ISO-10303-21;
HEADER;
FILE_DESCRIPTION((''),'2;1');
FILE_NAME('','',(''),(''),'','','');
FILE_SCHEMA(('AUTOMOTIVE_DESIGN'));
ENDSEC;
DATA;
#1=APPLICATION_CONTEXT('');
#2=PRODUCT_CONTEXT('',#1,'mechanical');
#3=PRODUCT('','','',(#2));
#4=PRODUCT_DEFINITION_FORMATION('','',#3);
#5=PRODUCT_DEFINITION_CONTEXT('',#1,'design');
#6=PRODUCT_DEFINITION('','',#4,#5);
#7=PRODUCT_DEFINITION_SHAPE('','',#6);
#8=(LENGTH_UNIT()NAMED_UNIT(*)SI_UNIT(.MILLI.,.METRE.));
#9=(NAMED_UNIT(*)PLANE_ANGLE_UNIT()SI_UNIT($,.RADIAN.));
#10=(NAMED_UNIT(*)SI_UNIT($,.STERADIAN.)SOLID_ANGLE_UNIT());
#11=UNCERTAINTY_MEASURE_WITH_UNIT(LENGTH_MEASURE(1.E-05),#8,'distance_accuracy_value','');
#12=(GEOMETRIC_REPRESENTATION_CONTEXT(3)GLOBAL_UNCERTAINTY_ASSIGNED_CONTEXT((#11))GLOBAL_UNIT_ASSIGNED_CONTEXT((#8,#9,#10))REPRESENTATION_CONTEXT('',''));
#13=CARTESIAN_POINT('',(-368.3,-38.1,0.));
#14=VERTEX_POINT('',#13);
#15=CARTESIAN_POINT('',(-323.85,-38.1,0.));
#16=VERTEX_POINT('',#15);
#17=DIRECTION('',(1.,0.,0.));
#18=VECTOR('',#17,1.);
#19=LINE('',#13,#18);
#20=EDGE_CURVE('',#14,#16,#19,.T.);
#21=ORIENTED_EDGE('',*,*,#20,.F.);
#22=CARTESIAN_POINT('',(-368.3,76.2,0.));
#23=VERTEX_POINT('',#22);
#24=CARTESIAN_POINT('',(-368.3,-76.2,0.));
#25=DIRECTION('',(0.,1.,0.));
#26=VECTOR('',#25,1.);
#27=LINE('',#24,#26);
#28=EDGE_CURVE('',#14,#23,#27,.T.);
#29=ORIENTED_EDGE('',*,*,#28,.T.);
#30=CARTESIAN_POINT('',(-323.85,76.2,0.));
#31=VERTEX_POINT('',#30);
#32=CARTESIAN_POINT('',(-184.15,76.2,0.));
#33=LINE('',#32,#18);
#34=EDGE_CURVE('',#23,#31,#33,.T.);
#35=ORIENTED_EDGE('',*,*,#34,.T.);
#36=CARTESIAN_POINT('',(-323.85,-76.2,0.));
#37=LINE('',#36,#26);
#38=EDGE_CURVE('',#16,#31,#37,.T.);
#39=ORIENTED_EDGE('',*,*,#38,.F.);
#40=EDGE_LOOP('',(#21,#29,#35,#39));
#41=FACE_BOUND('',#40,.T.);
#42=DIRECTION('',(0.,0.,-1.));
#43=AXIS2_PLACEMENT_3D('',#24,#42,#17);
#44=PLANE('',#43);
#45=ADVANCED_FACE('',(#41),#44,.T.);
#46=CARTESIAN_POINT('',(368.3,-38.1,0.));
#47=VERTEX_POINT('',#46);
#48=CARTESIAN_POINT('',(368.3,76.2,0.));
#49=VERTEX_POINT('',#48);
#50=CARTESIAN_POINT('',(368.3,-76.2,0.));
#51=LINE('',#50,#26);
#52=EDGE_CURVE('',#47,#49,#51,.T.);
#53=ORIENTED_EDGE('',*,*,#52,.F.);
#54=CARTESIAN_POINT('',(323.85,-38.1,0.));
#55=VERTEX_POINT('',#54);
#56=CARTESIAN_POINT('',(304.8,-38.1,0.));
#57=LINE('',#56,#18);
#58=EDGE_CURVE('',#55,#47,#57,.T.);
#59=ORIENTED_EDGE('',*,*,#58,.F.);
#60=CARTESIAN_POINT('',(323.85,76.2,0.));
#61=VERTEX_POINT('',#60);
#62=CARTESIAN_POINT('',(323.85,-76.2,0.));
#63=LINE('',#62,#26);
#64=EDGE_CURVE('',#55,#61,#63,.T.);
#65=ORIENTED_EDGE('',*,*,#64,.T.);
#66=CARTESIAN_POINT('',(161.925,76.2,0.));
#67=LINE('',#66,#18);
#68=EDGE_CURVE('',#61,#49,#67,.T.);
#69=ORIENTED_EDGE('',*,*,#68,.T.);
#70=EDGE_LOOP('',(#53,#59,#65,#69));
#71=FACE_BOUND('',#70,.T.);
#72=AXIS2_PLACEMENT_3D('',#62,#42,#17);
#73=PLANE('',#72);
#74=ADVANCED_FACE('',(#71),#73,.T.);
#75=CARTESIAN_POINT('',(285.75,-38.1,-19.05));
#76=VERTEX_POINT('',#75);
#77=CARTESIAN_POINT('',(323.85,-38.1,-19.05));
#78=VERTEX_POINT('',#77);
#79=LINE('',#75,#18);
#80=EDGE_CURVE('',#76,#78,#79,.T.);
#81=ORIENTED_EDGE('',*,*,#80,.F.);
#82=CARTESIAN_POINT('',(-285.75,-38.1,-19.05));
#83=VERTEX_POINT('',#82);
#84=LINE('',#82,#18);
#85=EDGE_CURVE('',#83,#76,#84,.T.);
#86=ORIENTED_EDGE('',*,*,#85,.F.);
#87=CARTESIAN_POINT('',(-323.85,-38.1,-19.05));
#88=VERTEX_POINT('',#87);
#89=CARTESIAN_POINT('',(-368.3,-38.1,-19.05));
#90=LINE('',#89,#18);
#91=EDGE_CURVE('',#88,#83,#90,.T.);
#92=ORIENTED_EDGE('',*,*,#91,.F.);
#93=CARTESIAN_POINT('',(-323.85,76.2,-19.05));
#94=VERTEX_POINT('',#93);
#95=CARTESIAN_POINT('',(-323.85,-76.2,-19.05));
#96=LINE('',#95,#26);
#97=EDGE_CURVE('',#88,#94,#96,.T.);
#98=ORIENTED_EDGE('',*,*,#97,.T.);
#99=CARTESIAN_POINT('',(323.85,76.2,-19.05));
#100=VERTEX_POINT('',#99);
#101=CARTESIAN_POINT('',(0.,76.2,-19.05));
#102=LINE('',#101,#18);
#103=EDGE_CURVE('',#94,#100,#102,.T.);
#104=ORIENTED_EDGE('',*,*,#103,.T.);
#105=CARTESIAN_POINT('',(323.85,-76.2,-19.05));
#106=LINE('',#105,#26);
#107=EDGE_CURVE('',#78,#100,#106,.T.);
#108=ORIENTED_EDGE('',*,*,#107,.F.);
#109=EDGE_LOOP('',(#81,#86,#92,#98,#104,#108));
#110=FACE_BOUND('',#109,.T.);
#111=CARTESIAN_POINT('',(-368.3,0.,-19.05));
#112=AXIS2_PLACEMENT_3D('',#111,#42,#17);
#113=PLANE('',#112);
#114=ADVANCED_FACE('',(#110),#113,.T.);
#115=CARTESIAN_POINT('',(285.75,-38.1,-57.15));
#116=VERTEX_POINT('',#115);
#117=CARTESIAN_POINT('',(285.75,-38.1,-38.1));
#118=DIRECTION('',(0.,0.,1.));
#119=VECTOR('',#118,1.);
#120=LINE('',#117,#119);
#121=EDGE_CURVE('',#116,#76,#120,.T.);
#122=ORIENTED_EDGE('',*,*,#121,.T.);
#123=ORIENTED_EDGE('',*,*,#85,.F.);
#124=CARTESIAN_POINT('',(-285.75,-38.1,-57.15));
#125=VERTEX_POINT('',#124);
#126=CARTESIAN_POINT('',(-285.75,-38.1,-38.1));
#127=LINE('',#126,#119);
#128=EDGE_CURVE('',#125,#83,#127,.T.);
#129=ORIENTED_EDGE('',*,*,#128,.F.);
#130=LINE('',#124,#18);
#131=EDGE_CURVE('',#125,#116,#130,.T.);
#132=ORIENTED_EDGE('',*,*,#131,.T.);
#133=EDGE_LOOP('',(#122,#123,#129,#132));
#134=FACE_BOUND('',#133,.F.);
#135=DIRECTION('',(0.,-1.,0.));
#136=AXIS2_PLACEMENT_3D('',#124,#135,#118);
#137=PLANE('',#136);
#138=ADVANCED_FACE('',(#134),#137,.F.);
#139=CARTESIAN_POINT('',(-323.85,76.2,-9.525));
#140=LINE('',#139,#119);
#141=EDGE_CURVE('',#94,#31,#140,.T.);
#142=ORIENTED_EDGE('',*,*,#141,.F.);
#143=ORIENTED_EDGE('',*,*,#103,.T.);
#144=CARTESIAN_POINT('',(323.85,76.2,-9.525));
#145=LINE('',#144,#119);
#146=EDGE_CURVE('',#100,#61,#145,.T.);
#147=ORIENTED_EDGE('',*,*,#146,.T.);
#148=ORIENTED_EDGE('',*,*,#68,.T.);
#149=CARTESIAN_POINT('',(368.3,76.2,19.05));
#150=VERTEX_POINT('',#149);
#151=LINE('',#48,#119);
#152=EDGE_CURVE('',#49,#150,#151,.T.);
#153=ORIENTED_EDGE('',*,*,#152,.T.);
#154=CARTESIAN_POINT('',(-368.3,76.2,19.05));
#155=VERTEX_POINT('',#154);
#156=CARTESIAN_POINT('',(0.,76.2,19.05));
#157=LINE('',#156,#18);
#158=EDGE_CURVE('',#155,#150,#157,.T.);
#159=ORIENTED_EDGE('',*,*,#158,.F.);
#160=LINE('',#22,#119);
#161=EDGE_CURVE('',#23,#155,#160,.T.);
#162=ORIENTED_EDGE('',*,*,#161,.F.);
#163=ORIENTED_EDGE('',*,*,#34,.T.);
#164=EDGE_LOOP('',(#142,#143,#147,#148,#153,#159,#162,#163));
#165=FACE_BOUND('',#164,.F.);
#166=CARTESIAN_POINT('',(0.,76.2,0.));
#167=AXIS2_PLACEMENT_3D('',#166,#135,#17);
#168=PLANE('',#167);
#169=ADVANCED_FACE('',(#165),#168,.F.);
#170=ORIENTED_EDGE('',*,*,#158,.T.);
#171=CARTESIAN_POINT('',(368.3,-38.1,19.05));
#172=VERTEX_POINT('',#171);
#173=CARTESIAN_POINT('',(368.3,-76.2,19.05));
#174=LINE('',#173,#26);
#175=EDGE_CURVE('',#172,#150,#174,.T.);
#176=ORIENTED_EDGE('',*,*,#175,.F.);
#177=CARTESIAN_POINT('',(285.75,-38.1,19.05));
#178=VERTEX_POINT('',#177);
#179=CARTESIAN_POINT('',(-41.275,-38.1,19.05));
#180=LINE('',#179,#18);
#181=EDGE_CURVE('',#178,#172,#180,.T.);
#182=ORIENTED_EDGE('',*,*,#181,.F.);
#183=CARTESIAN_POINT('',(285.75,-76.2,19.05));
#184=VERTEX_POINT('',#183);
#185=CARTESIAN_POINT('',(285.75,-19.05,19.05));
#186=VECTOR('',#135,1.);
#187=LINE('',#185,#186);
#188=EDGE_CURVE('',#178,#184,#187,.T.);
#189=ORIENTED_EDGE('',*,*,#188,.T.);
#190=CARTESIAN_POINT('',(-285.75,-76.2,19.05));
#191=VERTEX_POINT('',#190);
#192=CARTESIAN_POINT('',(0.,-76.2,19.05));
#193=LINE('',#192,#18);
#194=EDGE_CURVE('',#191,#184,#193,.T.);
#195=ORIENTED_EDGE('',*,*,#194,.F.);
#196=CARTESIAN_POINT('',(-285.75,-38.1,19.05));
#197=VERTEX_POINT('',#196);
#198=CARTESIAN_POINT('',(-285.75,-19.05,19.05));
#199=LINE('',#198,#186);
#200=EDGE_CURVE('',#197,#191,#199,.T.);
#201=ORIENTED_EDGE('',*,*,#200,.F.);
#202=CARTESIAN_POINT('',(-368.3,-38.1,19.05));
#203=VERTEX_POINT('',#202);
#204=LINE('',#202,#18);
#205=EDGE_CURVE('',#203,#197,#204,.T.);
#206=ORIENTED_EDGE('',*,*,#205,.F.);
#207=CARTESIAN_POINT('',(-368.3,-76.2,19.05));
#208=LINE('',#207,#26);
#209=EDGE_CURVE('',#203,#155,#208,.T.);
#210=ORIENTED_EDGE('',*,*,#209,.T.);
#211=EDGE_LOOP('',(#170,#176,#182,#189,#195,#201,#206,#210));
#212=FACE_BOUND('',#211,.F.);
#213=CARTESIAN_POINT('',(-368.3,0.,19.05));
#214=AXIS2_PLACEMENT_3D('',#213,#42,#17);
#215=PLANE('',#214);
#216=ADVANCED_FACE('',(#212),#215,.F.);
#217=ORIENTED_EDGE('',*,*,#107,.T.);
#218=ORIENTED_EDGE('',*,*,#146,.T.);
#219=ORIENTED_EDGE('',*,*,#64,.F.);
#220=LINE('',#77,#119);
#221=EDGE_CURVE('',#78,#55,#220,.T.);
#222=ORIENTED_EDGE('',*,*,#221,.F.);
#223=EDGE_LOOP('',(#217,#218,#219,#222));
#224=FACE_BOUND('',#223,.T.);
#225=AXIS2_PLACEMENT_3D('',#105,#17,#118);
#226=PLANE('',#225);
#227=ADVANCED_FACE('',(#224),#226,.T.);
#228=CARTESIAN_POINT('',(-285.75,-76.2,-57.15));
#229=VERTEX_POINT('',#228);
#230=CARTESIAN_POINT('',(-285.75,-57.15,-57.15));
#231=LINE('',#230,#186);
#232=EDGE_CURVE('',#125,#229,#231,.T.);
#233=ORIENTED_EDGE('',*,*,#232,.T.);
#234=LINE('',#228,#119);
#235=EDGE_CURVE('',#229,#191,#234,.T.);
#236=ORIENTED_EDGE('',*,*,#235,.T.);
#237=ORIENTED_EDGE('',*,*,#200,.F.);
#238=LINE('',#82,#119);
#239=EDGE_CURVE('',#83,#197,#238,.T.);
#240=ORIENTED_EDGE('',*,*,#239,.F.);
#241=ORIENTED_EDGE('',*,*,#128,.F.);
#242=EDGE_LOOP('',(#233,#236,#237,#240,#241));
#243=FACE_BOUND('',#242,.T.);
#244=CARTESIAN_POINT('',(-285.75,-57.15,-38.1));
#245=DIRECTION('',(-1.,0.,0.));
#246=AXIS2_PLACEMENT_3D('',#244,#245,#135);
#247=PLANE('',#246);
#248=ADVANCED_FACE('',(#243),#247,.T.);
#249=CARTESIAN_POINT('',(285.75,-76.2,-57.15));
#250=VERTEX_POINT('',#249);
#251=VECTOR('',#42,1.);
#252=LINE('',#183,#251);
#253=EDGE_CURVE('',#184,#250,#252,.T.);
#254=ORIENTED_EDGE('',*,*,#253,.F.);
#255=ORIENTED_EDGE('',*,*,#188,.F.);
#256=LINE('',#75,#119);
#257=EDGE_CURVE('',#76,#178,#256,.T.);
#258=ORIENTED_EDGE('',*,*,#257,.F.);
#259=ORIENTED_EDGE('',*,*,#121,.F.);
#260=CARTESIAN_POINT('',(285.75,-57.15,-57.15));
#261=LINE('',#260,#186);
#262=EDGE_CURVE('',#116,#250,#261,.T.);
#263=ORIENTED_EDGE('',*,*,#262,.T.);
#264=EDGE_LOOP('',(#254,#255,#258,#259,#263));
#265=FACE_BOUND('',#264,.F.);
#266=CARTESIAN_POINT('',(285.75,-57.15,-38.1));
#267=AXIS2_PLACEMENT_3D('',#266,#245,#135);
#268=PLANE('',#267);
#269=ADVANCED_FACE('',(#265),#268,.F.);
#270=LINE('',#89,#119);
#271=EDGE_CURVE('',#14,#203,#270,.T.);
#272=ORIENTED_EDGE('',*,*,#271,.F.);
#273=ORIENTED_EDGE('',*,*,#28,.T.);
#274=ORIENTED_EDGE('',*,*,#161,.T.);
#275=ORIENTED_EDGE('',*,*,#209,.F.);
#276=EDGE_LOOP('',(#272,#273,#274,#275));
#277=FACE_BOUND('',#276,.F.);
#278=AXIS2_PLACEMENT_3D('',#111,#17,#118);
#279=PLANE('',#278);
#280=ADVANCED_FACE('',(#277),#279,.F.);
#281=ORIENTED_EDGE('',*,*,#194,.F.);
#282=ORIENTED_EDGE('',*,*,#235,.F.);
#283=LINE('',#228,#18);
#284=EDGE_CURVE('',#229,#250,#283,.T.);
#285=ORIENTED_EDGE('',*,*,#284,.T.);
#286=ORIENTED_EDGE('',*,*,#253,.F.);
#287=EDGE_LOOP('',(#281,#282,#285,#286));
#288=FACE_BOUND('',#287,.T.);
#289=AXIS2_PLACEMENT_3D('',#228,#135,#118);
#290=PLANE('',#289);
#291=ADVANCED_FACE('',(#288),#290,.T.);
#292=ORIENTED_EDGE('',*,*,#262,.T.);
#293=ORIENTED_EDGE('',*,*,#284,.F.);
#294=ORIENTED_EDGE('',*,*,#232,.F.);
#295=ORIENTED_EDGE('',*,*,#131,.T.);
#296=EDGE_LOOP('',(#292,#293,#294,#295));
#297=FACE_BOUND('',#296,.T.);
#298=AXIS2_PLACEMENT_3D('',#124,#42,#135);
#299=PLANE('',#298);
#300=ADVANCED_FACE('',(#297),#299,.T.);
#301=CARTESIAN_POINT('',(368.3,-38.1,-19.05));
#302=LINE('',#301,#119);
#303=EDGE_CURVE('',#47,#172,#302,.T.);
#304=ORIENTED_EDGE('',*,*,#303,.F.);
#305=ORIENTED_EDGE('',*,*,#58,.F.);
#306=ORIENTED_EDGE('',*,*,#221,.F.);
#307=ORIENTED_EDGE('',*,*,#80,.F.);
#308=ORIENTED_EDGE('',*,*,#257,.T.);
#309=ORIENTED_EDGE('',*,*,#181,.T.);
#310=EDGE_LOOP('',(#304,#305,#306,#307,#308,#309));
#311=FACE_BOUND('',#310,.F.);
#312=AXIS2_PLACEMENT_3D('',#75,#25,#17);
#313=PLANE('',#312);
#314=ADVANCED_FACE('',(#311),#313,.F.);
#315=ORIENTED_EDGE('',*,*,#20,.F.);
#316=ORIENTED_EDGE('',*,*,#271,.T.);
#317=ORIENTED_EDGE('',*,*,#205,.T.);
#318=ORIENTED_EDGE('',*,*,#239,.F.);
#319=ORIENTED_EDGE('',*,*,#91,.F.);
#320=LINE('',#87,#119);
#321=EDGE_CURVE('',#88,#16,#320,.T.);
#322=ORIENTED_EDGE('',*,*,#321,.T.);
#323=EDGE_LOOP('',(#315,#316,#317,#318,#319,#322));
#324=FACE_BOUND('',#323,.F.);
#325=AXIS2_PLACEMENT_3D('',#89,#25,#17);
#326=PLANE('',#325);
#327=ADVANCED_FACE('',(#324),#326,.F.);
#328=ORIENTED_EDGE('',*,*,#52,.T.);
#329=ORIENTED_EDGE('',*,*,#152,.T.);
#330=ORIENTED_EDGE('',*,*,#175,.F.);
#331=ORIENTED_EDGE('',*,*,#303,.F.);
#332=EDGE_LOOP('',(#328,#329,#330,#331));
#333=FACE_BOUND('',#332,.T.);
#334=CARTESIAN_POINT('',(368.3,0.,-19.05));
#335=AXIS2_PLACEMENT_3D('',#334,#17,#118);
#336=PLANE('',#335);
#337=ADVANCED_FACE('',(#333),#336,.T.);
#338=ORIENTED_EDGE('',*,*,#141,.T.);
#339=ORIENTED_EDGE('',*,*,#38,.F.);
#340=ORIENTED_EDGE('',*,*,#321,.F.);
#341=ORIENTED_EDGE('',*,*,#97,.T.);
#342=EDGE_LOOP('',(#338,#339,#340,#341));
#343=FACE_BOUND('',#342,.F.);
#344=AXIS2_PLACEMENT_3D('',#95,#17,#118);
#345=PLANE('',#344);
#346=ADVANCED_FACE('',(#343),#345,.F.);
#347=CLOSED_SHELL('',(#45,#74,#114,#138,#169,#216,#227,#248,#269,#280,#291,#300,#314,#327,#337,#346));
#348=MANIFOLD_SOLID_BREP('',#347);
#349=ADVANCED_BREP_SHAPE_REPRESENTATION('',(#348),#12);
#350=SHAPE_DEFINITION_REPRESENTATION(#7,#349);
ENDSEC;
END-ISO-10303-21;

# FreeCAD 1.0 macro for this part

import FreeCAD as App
import Part
import Sketcher

V = App.Vector
Q = App.Units.Quantity

doc = App.newDocument("Part")
params = doc.addObject("Spreadsheet::Sheet", "Params")
for row, (alias, value) in enumerate([
    ("sketch1_width", "29 in"),
    ("sketch1_height", "1.5 in"),
    ("pad1_length", "6 in"),
    ("sketch2_width", "1.75 in"),
    ("sketch2_height", "0.75 in"),
    ("sketch3_height", "1.5 in"),
    ("sketch3_width", "3.25 in"),
    ("sketch4_width", "1.5 in"),
    ("pad2_length", "22.5 in"),
], start=1):
    params.set(f"A{row}", alias)
    params.set(f"B{row}", "=" + value)
    params.setAlias(f"B{row}", alias)

body = doc.addObject("PartDesign::Body", "Body")

sketch1 = body.newObject("Sketcher::SketchObject", "Sketch")
sketch1.AttachmentSupport = (doc.getObject("XZ_Plane"), [""])
sketch1.MapMode = "FlatFace"
sketch1.addGeometry([
    Part.LineSegment(V(-368.3, 19.05, 0), V(-368.3, -19.05, 0)),
    Part.LineSegment(V(-368.3, -19.05, 0), V(368.3, -19.05, 0)),
    Part.LineSegment(V(368.3, -19.05, 0), V(368.3, 19.05, 0)),
    Part.LineSegment(V(368.3, 19.05, 0), V(-368.3, 19.05, 0)),
], False)
sketch1.addConstraint([
    Sketcher.Constraint("Coincident", 0, 2, 1, 1),
    Sketcher.Constraint("Coincident", 1, 2, 2, 1),
    Sketcher.Constraint("Coincident", 2, 2, 3, 1),
    Sketcher.Constraint("Coincident", 3, 2, 0, 1),
    Sketcher.Constraint("Vertical", 0),
    Sketcher.Constraint("Horizontal", 1),
    Sketcher.Constraint("Vertical", 2),
    Sketcher.Constraint("Horizontal", 3),
    Sketcher.Constraint("Symmetric", 0, 2, 2, 2, -1, 1),
    Sketcher.Constraint("DistanceX", 1, 1, 1, 2, Q("29 in")),
    Sketcher.Constraint("DistanceY", 0, 2, 0, 1, Q("1.5 in")),
])
sketch1.setExpression("Constraints[9]", "Params.sketch1_width")
sketch1.setExpression("Constraints[10]", "Params.sketch1_height")
pad1 = body.newObject("PartDesign::Pad", "Pad")
pad1.Profile = sketch1
pad1.setExpression("Length", "Params.pad1_length")
pad1.Midplane = True

sketch2 = body.newObject("Sketcher::SketchObject", "Sketch001")
sketch2.AttachmentSupport = (doc.getObject("XZ_Plane"), [""])
sketch2.MapMode = "FlatFace"
sketch2.AttachmentOffset = App.Placement(V(0, 0, 3 * 25.4), App.Rotation())
sketch2.addGeometry([
    Part.LineSegment(V(-368.3, 0, 0), V(-368.3, -19.05, 0)),
    Part.LineSegment(V(-368.3, -19.05, 0), V(-323.85, -19.05, 0)),
    Part.LineSegment(V(-323.85, -19.05, 0), V(-323.85, 0, 0)),
    Part.LineSegment(V(-323.85, 0, 0), V(-368.3, 0, 0)),
    Part.LineSegment(V(323.85, 0, 0), V(323.85, -19.05, 0)),
    Part.LineSegment(V(323.85, -19.05, 0), V(368.3, -19.05, 0)),
    Part.LineSegment(V(368.3, -19.05, 0), V(368.3, 0, 0)),
    Part.LineSegment(V(368.3, 0, 0), V(323.85, 0, 0)),
], False)
sketch2.addConstraint([
    Sketcher.Constraint("Coincident", 0, 2, 1, 1),
    Sketcher.Constraint("Coincident", 1, 2, 2, 1),
    Sketcher.Constraint("Coincident", 2, 2, 3, 1),
    Sketcher.Constraint("Coincident", 3, 2, 0, 1),
    Sketcher.Constraint("Coincident", 4, 2, 5, 1),
    Sketcher.Constraint("Coincident", 5, 2, 6, 1),
    Sketcher.Constraint("Coincident", 6, 2, 7, 1),
    Sketcher.Constraint("Coincident", 7, 2, 4, 1),
    Sketcher.Constraint("Vertical", 0),
    Sketcher.Constraint("Horizontal", 1),
    Sketcher.Constraint("Vertical", 2),
    Sketcher.Constraint("Horizontal", 3),
    Sketcher.Constraint("Vertical", 4),
    Sketcher.Constraint("Horizontal", 5),
    Sketcher.Constraint("Vertical", 6),
    Sketcher.Constraint("Horizontal", 7),
    Sketcher.Constraint("Symmetric", 3, 2, 6, 2, -1, 1),
    Sketcher.Constraint("Symmetric", 1, 2, 4, 2, -2),
    Sketcher.Constraint("PointOnObject", 2, 2, -1),
    Sketcher.Constraint("DistanceX", 0, 2, 5, 2, Q("29 in")),
    Sketcher.Constraint("DistanceX", 1, 1, 1, 2, Q("1.75 in")),
    Sketcher.Constraint("DistanceY", 0, 2, 0, 1, Q("0.75 in")),
])
sketch2.setExpression("Constraints[20]", "Params.sketch2_width")
sketch2.setExpression("Constraints[21]", "Params.sketch2_height")
pocket1 = body.newObject("PartDesign::Pocket", "Pocket")
pocket1.Profile = sketch2
pocket1.Type = "ThroughAll"

sketch3 = body.newObject("Sketcher::SketchObject", "Sketch002")
sketch3.AttachmentSupport = (doc.getObject("XY_Plane"), [""])
sketch3.MapMode = "FlatFace"
sketch3.AttachmentOffset = App.Placement(V(0, 0, -0.75 * 25.4), App.Rotation())
sketch3.addGeometry([
    Part.LineSegment(V(-368.3, -76.2, 0), V(-368.3, -38.1, 0)),
    Part.LineSegment(V(-368.3, -38.1, 0), V(-285.75, -38.1, 0)),
    Part.LineSegment(V(-285.75, -38.1, 0), V(-285.75, -76.2, 0)),
    Part.LineSegment(V(-285.75, -76.2, 0), V(-368.3, -76.2, 0)),
    Part.LineSegment(V(285.75, -76.2, 0), V(285.75, -38.1, 0)),
    Part.LineSegment(V(285.75, -38.1, 0), V(368.3, -38.1, 0)),
    Part.LineSegment(V(368.3, -38.1, 0), V(368.3, -76.2, 0)),
    Part.LineSegment(V(368.3, -76.2, 0), V(285.75, -76.2, 0)),
], False)
sketch3.addConstraint([
    Sketcher.Constraint("Coincident", 0, 2, 1, 1),
    Sketcher.Constraint("Coincident", 1, 2, 2, 1),
    Sketcher.Constraint("Coincident", 2, 2, 3, 1),
    Sketcher.Constraint("Coincident", 3, 2, 0, 1),
    Sketcher.Constraint("Coincident", 4, 2, 5, 1),
    Sketcher.Constraint("Coincident", 5, 2, 6, 1),
    Sketcher.Constraint("Coincident", 6, 2, 7, 1),
    Sketcher.Constraint("Coincident", 7, 2, 4, 1),
    Sketcher.Constraint("Vertical", 0),
    Sketcher.Constraint("Horizontal", 1),
    Sketcher.Constraint("Vertical", 2),
    Sketcher.Constraint("Horizontal", 3),
    Sketcher.Constraint("Vertical", 4),
    Sketcher.Constraint("Horizontal", 5),
    Sketcher.Constraint("Vertical", 6),
    Sketcher.Constraint("Horizontal", 7),
    Sketcher.Constraint("Symmetric", 1, 2, 4, 2, -2),
    Sketcher.Constraint("Symmetric", 3, 2, 6, 2, -2),
    Sketcher.Constraint("DistanceY", 0, 1, 0, 2, Q("1.5 in")),
    Sketcher.Constraint("DistanceY", 2, 2, -1, 1, Q("3 in")),
    Sketcher.Constraint("DistanceX", 0, 2, 5, 2, Q("29 in")),
    Sketcher.Constraint("DistanceX", 1, 1, 1, 2, Q("3.25 in")),
])
sketch3.setExpression("Constraints[18]", "Params.sketch3_height")
sketch3.setExpression("Constraints[21]", "Params.sketch3_width")
pocket2 = body.newObject("PartDesign::Pocket", "Pocket001")
pocket2.Profile = sketch3
pocket2.Type = "ThroughAll"
pocket2.Reversed = True

sketch4 = body.newObject("Sketcher::SketchObject", "Sketch003")
sketch4.AttachmentSupport = (doc.getObject("YZ_Plane"), [""])
sketch4.MapMode = "FlatFace"
sketch4.AttachmentOffset = App.Placement(V(0, 0, -11.25 * 25.4), App.Rotation())
sketch4.addGeometry([
    Part.LineSegment(V(-38.1, -19.05, 0), V(-38.1, -57.15, 0)),
    Part.LineSegment(V(-38.1, -57.15, 0), V(-76.2, -57.15, 0)),
    Part.LineSegment(V(-76.2, -57.15, 0), V(-76.2, -19.05, 0)),
    Part.LineSegment(V(-76.2, -19.05, 0), V(-38.1, -19.05, 0)),
], False)
sketch4.addConstraint([
    Sketcher.Constraint("Coincident", 0, 2, 1, 1),
    Sketcher.Constraint("Coincident", 1, 2, 2, 1),
    Sketcher.Constraint("Coincident", 2, 2, 3, 1),
    Sketcher.Constraint("Coincident", 3, 2, 0, 1),
    Sketcher.Constraint("Vertical", 0),
    Sketcher.Constraint("Horizontal", 1),
    Sketcher.Constraint("Vertical", 2),
    Sketcher.Constraint("Horizontal", 3),
    Sketcher.Constraint("Equal", 3, 0),
    Sketcher.Constraint("DistanceX", 1, 2, 1, 1, Q("1.5 in")),
    Sketcher.Constraint("DistanceX", 1, 2, -1, 1, Q("3 in")),
    Sketcher.Constraint("DistanceY", 0, 2, -1, 1, Q("2.25 in")),
])
sketch4.setExpression("Constraints[9]", "Params.sketch4_width")
pad2 = body.newObject("PartDesign::Pad", "Pad001")
pad2.Profile = sketch4
pad2.setExpression("Length", "Params.pad2_length")

doc.recompute()
